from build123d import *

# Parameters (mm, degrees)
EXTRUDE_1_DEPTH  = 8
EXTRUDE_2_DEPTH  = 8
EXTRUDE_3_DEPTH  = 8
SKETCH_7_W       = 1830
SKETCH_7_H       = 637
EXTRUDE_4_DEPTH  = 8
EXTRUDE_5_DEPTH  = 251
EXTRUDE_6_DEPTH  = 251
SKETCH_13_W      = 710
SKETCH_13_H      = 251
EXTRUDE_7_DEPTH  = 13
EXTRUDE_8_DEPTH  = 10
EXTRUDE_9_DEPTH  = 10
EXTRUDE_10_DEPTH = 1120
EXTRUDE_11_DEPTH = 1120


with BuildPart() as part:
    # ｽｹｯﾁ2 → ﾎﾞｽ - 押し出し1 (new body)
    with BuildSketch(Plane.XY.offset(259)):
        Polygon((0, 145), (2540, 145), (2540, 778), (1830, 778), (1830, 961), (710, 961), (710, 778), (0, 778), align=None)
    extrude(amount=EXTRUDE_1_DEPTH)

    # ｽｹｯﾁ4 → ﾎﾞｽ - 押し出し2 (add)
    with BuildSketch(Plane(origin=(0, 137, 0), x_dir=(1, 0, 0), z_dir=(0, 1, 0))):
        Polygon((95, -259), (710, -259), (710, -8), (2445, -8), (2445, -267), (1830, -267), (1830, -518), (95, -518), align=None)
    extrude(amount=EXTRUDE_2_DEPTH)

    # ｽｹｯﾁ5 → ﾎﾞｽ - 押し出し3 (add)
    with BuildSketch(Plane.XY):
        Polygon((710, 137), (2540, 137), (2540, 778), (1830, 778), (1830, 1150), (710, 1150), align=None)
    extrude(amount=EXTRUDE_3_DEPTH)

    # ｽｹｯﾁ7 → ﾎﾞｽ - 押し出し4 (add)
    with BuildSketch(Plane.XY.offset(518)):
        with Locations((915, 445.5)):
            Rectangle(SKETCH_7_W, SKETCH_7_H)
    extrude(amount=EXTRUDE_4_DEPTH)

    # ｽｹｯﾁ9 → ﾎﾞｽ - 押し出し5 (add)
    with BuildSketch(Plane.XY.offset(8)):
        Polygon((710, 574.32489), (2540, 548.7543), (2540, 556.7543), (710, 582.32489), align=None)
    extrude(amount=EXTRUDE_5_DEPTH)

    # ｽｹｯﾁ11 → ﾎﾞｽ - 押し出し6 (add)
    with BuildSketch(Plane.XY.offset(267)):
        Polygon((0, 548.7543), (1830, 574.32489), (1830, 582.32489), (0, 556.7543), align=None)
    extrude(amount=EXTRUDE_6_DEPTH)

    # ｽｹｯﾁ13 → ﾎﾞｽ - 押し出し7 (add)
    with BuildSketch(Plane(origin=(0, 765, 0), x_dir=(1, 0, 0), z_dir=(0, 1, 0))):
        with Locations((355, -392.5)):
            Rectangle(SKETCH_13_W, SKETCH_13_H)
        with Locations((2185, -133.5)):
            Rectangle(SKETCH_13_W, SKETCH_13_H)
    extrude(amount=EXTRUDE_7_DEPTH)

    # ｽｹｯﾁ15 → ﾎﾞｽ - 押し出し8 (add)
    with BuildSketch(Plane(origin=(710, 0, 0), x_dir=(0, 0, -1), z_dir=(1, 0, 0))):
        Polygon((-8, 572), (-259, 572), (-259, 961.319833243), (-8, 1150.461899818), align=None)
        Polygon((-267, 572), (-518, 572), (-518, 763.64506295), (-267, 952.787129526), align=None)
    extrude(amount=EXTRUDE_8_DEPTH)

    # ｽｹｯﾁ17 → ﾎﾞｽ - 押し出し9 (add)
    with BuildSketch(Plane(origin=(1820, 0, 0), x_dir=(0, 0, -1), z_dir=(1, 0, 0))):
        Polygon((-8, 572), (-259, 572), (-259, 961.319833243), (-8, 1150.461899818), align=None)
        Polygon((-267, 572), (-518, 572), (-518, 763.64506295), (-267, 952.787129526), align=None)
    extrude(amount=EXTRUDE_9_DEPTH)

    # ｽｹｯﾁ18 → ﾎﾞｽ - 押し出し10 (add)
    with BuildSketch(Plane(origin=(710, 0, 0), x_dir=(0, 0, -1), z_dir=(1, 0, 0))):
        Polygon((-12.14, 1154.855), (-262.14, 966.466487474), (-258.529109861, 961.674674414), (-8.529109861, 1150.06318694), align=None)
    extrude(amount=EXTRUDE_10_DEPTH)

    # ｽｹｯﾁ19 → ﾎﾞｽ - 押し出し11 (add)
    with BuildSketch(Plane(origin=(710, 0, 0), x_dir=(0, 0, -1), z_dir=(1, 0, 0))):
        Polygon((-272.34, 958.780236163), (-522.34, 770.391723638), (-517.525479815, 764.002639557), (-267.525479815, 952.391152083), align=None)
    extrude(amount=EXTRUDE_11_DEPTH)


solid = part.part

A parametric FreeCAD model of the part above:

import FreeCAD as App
import Part
import Sketcher

V = App.Vector
Q = App.Units.Quantity


def add_polygon(sketch, points):
    """Adds a closed chain of lines whose ends are joined by coincident constraints."""
    first, n = sketch.GeometryCount, len(points)
    for a, b in zip(points, points[1:] + points[:1]):
        sketch.addGeometry(Part.LineSegment(App.Vector(*a, 0), App.Vector(*b, 0)), False)
    for i in range(n):
        sketch.addConstraint(Sketcher.Constraint("Coincident", first + i, 2, first + (i + 1) % n, 1))

doc = App.newDocument("Part")
body = doc.addObject("PartDesign::Body", "Body")

# Sketch on XY plane
sketch1 = body.newObject("Sketcher::SketchObject", "Sketch")
sketch1.AttachmentSupport = (doc.getObject("XY_Plane"), [""])
sketch1.MapMode = "FlatFace"
sketch1.AttachmentOffset = App.Placement(V(0, 0, 259), App.Rotation())
add_polygon(sketch1, [(0, 145), (2540, 145), (2540, 778), (1830, 778), (1830, 961), (710, 961), (710, 778), (0, 778)])  # lines 0-7
sketch1.addConstraint([
    Sketcher.Constraint("Horizontal", 0),
    Sketcher.Constraint("Vertical", 1),
    Sketcher.Constraint("Horizontal", 2),
    Sketcher.Constraint("Vertical", 3),
    Sketcher.Constraint("Horizontal", 4),
    Sketcher.Constraint("Vertical", 5),
    Sketcher.Constraint("Horizontal", 6),
    Sketcher.Constraint("Vertical", 7),
    Sketcher.Constraint("PointOnObject", 6, 2, -2),
    Sketcher.Constraint("Horizontal", 2, 2, 5, 2),
    Sketcher.Constraint("Equal", 2, 6),
    Sketcher.Constraint("DistanceX", 0, 1, 0, 2, Q("2540 mm")),
    Sketcher.Constraint("DistanceX", 2, 2, 2, 1, Q("710 mm")),
    Sketcher.Constraint("DistanceY", 1, 1, 1, 2, Q("633 mm")),
    Sketcher.Constraint("DistanceY", 3, 1, 3, 2, Q("183 mm")),
    Sketcher.Constraint("DistanceY", -1, 1, 0, 2, Q("145 mm")),
])
pad1 = body.newObject("PartDesign::Pad", "Pad")
pad1.Profile = sketch1
pad1.Length = 8

# Sketch on XZ plane
sketch2 = body.newObject("Sketcher::SketchObject", "Sketch001")
sketch2.AttachmentSupport = (doc.getObject("XZ_Plane"), [""])
sketch2.MapMode = "FlatFace"
sketch2.AttachmentOffset = App.Placement(V(0, 0, -137), App.Rotation())
add_polygon(sketch2, [(710, 259), (95, 259), (95, 518), (1830, 518), (1830, 267), (2445, 267), (2445, 8), (710, 8)])  # lines 0-7
sketch2.addConstraint([
    Sketcher.Constraint("Horizontal", 0),
    Sketcher.Constraint("Vertical", 1),
    Sketcher.Constraint("Horizontal", 2),
    Sketcher.Constraint("Vertical", 3),
    Sketcher.Constraint("Horizontal", 4),
    Sketcher.Constraint("Vertical", 5),
    Sketcher.Constraint("Horizontal", 6),
    Sketcher.Constraint("Vertical", 7),
    Sketcher.Constraint("Equal", 0, 4),
    Sketcher.Constraint("Equal", 1, 5),
    Sketcher.Constraint("DistanceX", 0, 2, 0, 1, Q("615 mm")),
    Sketcher.Constraint("DistanceX", 2, 1, 2, 2, Q("1735 mm")),
    Sketcher.Constraint("DistanceY", 1, 1, 1, 2, Q("259 mm")),
    Sketcher.Constraint("DistanceY", 3, 2, 3, 1, Q("251 mm")),
    Sketcher.Constraint("DistanceX", -1, 1, 0, 2, Q("95 mm")),
    Sketcher.Constraint("DistanceY", -1, 1, 0, 2, Q("259 mm")),
])
pad2 = body.newObject("PartDesign::Pad", "Pad001")
pad2.Profile = sketch2
pad2.Length = 8
pad2.Reversed = True

# Sketch on XY plane
sketch3 = body.newObject("Sketcher::SketchObject", "Sketch002")
sketch3.AttachmentSupport = (doc.getObject("XY_Plane"), [""])
sketch3.MapMode = "FlatFace"
add_polygon(sketch3, [(710, 137), (2540, 137), (2540, 778), (1830, 778), (1830, 1150), (710, 1150)])  # lines 0-5
sketch3.addConstraint([
    Sketcher.Constraint("Horizontal", 0),
    Sketcher.Constraint("Vertical", 1),
    Sketcher.Constraint("Horizontal", 2),
    Sketcher.Constraint("Vertical", 3),
    Sketcher.Constraint("Horizontal", 4),
    Sketcher.Constraint("Vertical", 5),
    Sketcher.Constraint("DistanceX", 0, 1, 0, 2, Q("1830 mm")),
    Sketcher.Constraint("DistanceX", 2, 2, 2, 1, Q("710 mm")),
    Sketcher.Constraint("DistanceY", 1, 1, 1, 2, Q("641 mm")),
    Sketcher.Constraint("DistanceY", 3, 1, 3, 2, Q("372 mm")),
    Sketcher.Constraint("DistanceX", -1, 1, 0, 2, Q("2540 mm")),
    Sketcher.Constraint("DistanceY", -1, 1, 0, 2, Q("137 mm")),
])
pad3 = body.newObject("PartDesign::Pad", "Pad002")
pad3.Profile = sketch3
pad3.Length = 8

# Sketch on XY plane
sketch4 = body.newObject("Sketcher::SketchObject", "Sketch003")
sketch4.AttachmentSupport = (doc.getObject("XY_Plane"), [""])
sketch4.MapMode = "FlatFace"
sketch4.AttachmentOffset = App.Placement(V(0, 0, 518), App.Rotation())
add_polygon(sketch4, [(0, 764), (0, 127), (1830, 127), (1830, 764)])  # lines 0-3
sketch4.addConstraint([
    Sketcher.Constraint("Vertical", 0),
    Sketcher.Constraint("Horizontal", 1),
    Sketcher.Constraint("Vertical", 2),
    Sketcher.Constraint("Horizontal", 3),
    Sketcher.Constraint("PointOnObject", 0, 2, -2),
    Sketcher.Constraint("DistanceX", 1, 1, 1, 2, Q("1830 mm")),
    Sketcher.Constraint("DistanceY", 0, 2, 0, 1, Q("637 mm")),
    Sketcher.Constraint("DistanceY", -1, 1, 0, 2, Q("127 mm")),
])
pad4 = body.newObject("PartDesign::Pad", "Pad003")
pad4.Profile = sketch4
pad4.Length = 8

# Sketch on XY plane
sketch5 = body.newObject("Sketcher::SketchObject", "Sketch004")
sketch5.AttachmentSupport = (doc.getObject("XY_Plane"), [""])
sketch5.MapMode = "FlatFace"
sketch5.AttachmentOffset = App.Placement(V(0, 0, 8), App.Rotation())
add_polygon(sketch5, [(710, 574), (2540, 549), (2540, 557), (710, 582)])  # lines 0-3
sketch5.addConstraint([
    Sketcher.Constraint("Vertical", 1),
    Sketcher.Constraint("Vertical", 3),
    Sketcher.Constraint("Parallel", 0, 2),
    Sketcher.Constraint("DistanceY", 1, 1, 1, 2, Q("8 mm")),
    Sketcher.Constraint("DistanceX", -1, 1, 0, 2, Q("2540 mm")),
    Sketcher.Constraint("DistanceX", -1, 1, 2, 2, Q("710 mm")),
    Sketcher.Constraint("DistanceY", -1, 1, 0, 2, Q("548.7543 mm")),
    Sketcher.Constraint("Distance", 0, Q("1830.17864 mm")),
])
pad5 = body.newObject("PartDesign::Pad", "Pad004")
pad5.Profile = sketch5
pad5.Length = 251

# Sketch on XY plane
sketch6 = body.newObject("Sketcher::SketchObject", "Sketch005")
sketch6.AttachmentSupport = (doc.getObject("XY_Plane"), [""])
sketch6.MapMode = "FlatFace"
sketch6.AttachmentOffset = App.Placement(V(0, 0, 267), App.Rotation())
add_polygon(sketch6, [(0, 549), (1830, 574), (1830, 582), (0, 557)])  # lines 0-3
sketch6.addConstraint([
    Sketcher.Constraint("Vertical", 1),
    Sketcher.Constraint("Vertical", 3),
    Sketcher.Constraint("PointOnObject", 2, 2, -2),
    Sketcher.Constraint("Parallel", 0, 2),
    Sketcher.Constraint("DistanceY", 1, 1, 1, 2, Q("8 mm")),
    Sketcher.Constraint("DistanceX", -1, 1, 0, 2, Q("1830 mm")),
    Sketcher.Constraint("DistanceY", -1, 1, 2, 2, Q("556.7543 mm")),
    Sketcher.Constraint("Distance", 0, Q("1830.17864 mm")),
])
pad6 = body.newObject("PartDesign::Pad", "Pad005")
pad6.Profile = sketch6
pad6.Length = 251

# Sketch on XZ plane
sketch7 = body.newObject("Sketcher::SketchObject", "Sketch006")
sketch7.AttachmentSupport = (doc.getObject("XZ_Plane"), [""])
sketch7.MapMode = "FlatFace"
sketch7.AttachmentOffset = App.Placement(V(0, 0, -765), App.Rotation())
add_polygon(sketch7, [(0, 267), (0, 518), (710, 518), (710, 267)])  # lines 0-3
add_polygon(sketch7, [(1830, 8), (1830, 259), (2540, 259), (2540, 8)])  # lines 4-7
sketch7.addConstraint([
    Sketcher.Constraint("Vertical", 0),
    Sketcher.Constraint("Horizontal", 1),
    Sketcher.Constraint("Vertical", 2),
    Sketcher.Constraint("Horizontal", 3),
    Sketcher.Constraint("Vertical", 4),
    Sketcher.Constraint("Horizontal", 5),
    Sketcher.Constraint("Vertical", 6),
    Sketcher.Constraint("Horizontal", 7),
    Sketcher.Constraint("PointOnObject", 0, 2, -2),
    Sketcher.Constraint("Equal", 3, 5),
    Sketcher.Constraint("Equal", 2, 4),
    Sketcher.Constraint("DistanceX", 1, 1, 1, 2, Q("710 mm")),
    Sketcher.Constraint("DistanceY", 0, 1, 0, 2, Q("251 mm")),
    Sketcher.Constraint("DistanceY", -1, 1, 0, 2, Q("518 mm")),
    Sketcher.Constraint("DistanceX", -1, 1, 4, 2, Q("1830 mm")),
    Sketcher.Constraint("DistanceY", -1, 1, 4, 2, Q("259 mm")),
])
pad7 = body.newObject("PartDesign::Pad", "Pad006")
pad7.Profile = sketch7
pad7.Length = 13
pad7.Reversed = True

# Sketch on YZ plane
sketch8 = body.newObject("Sketcher::SketchObject", "Sketch007")
sketch8.AttachmentSupport = (doc.getObject("YZ_Plane"), [""])
sketch8.MapMode = "FlatFace"
sketch8.AttachmentOffset = App.Placement(V(0, 0, 710), App.Rotation())
add_polygon(sketch8, [(572, 259), (572, 8), (1150, 8), (961, 259)])  # lines 0-3
add_polygon(sketch8, [(572, 518), (572, 267), (953, 267), (764, 518)])  # lines 4-7
sketch8.addConstraint([
    Sketcher.Constraint("Vertical", 0),
    Sketcher.Constraint("Horizontal", 1),
    Sketcher.Constraint("Horizontal", 3),
    Sketcher.Constraint("Vertical", 4),
    Sketcher.Constraint("Horizontal", 5),
    Sketcher.Constraint("Horizontal", 7),
    Sketcher.Constraint("Parallel", 2, 6),
    Sketcher.Constraint("Vertical", 3, 2, 4, 2),
    Sketcher.Constraint("Equal", 0, 4),
    Sketcher.Constraint("DistanceY", 0, 2, 0, 1, Q("251 mm")),
    Sketcher.Constraint("Angle", 2, Q("127 deg")),
    Sketcher.Constraint("DistanceX", -1, 1, 0, 2, Q("572 mm")),
    Sketcher.Constraint("DistanceY", -1, 1, 0, 2, Q("8 mm")),
    Sketcher.Constraint("DistanceY", -1, 1, 4, 2, Q("267 mm")),
    Sketcher.Constraint("DistanceX", 1, 1, 1, 2, Q("578.4619 mm")),
    Sketcher.Constraint("DistanceX", 5, 1, 5, 2, Q("380.78713 mm")),
])
pad8 = body.newObject("PartDesign::Pad", "Pad007")
pad8.Profile = sketch8
pad8.Length = 10

# Sketch on YZ plane
sketch9 = body.newObject("Sketcher::SketchObject", "Sketch008")
sketch9.AttachmentSupport = (doc.getObject("YZ_Plane"), [""])
sketch9.MapMode = "FlatFace"
sketch9.AttachmentOffset = App.Placement(V(0, 0, 1820), App.Rotation())
add_polygon(sketch9, [(572, 259), (572, 8), (1150, 8), (961, 259)])  # lines 0-3
add_polygon(sketch9, [(572, 518), (572, 267), (953, 267), (764, 518)])  # lines 4-7
sketch9.addConstraint([
    Sketcher.Constraint("Vertical", 0),
    Sketcher.Constraint("Horizontal", 1),
    Sketcher.Constraint("Horizontal", 3),
    Sketcher.Constraint("Vertical", 4),
    Sketcher.Constraint("Horizontal", 5),
    Sketcher.Constraint("Horizontal", 7),
    Sketcher.Constraint("Parallel", 2, 6),
    Sketcher.Constraint("Vertical", 3, 2, 4, 2),
    Sketcher.Constraint("Equal", 0, 4),
    Sketcher.Constraint("DistanceY", 0, 2, 0, 1, Q("251 mm")),
    Sketcher.Constraint("Angle", 2, Q("127 deg")),
    Sketcher.Constraint("DistanceX", -1, 1, 0, 2, Q("572 mm")),
    Sketcher.Constraint("DistanceY", -1, 1, 0, 2, Q("8 mm")),
    Sketcher.Constraint("DistanceY", -1, 1, 4, 2, Q("267 mm")),
    Sketcher.Constraint("DistanceX", 1, 1, 1, 2, Q("578.4619 mm")),
    Sketcher.Constraint("DistanceX", 5, 1, 5, 2, Q("380.78713 mm")),
])
pad9 = body.newObject("PartDesign::Pad", "Pad008")
pad9.Profile = sketch9
pad9.Length = 10

# Sketch on YZ plane
sketch10 = body.newObject("Sketcher::SketchObject", "Sketch009")
sketch10.AttachmentSupport = (doc.getObject("YZ_Plane"), [""])
sketch10.MapMode = "FlatFace"
sketch10.AttachmentOffset = App.Placement(V(0, 0, 710), App.Rotation())
add_polygon(sketch10, [(1155, 12), (966, 262), (962, 259), (1150, 9)])  # lines 0-3
sketch10.addConstraint([
    Sketcher.Constraint("Perpendicular", 0, 1),
    Sketcher.Constraint("Perpendicular", 1, 2),
    Sketcher.Constraint("Perpendicular", 2, 3),
    Sketcher.Constraint("Angle", 0, Q("127 deg")),
    Sketcher.Constraint("Distance", 1, Q("6 mm")),
    Sketcher.Constraint("DistanceY", 2, 2, 1, 2, Q("250 mm")),
    Sketcher.Constraint("DistanceY", -1, 1, 0, 2, Q("262.14 mm")),
    Sketcher.Constraint("DistanceX", -1, 1, 3, 2, Q("1154.855 mm")),
])
pad10 = body.newObject("PartDesign::Pad", "Pad009")
pad10.Profile = sketch10
pad10.Length = 1120

# Sketch on YZ plane
sketch11 = body.newObject("Sketcher::SketchObject", "Sketch010")
sketch11.AttachmentSupport = (doc.getObject("YZ_Plane"), [""])
sketch11.MapMode = "FlatFace"
sketch11.AttachmentOffset = App.Placement(V(0, 0, 710), App.Rotation())
add_polygon(sketch11, [(959, 272), (770, 522), (764, 518), (952, 268)])  # lines 0-3
sketch11.addConstraint([
    Sketcher.Constraint("Perpendicular", 0, 1),
    Sketcher.Constraint("Perpendicular", 1, 2),
    Sketcher.Constraint("Perpendicular", 2, 3),
    Sketcher.Constraint("Angle", 0, Q("127 deg")),
    Sketcher.Constraint("Distance", 1, Q("8 mm")),
    Sketcher.Constraint("DistanceY", 2, 2, 1, 2, Q("250 mm")),
    Sketcher.Constraint("DistanceY", -1, 1, 0, 2, Q("522.34 mm")),
    Sketcher.Constraint("DistanceX", -1, 1, 1, 2, Q("764.00264 mm")),
])
pad11 = body.newObject("PartDesign::Pad", "Pad010")
pad11.Profile = sketch11
pad11.Length = 1120

doc.recompute()
